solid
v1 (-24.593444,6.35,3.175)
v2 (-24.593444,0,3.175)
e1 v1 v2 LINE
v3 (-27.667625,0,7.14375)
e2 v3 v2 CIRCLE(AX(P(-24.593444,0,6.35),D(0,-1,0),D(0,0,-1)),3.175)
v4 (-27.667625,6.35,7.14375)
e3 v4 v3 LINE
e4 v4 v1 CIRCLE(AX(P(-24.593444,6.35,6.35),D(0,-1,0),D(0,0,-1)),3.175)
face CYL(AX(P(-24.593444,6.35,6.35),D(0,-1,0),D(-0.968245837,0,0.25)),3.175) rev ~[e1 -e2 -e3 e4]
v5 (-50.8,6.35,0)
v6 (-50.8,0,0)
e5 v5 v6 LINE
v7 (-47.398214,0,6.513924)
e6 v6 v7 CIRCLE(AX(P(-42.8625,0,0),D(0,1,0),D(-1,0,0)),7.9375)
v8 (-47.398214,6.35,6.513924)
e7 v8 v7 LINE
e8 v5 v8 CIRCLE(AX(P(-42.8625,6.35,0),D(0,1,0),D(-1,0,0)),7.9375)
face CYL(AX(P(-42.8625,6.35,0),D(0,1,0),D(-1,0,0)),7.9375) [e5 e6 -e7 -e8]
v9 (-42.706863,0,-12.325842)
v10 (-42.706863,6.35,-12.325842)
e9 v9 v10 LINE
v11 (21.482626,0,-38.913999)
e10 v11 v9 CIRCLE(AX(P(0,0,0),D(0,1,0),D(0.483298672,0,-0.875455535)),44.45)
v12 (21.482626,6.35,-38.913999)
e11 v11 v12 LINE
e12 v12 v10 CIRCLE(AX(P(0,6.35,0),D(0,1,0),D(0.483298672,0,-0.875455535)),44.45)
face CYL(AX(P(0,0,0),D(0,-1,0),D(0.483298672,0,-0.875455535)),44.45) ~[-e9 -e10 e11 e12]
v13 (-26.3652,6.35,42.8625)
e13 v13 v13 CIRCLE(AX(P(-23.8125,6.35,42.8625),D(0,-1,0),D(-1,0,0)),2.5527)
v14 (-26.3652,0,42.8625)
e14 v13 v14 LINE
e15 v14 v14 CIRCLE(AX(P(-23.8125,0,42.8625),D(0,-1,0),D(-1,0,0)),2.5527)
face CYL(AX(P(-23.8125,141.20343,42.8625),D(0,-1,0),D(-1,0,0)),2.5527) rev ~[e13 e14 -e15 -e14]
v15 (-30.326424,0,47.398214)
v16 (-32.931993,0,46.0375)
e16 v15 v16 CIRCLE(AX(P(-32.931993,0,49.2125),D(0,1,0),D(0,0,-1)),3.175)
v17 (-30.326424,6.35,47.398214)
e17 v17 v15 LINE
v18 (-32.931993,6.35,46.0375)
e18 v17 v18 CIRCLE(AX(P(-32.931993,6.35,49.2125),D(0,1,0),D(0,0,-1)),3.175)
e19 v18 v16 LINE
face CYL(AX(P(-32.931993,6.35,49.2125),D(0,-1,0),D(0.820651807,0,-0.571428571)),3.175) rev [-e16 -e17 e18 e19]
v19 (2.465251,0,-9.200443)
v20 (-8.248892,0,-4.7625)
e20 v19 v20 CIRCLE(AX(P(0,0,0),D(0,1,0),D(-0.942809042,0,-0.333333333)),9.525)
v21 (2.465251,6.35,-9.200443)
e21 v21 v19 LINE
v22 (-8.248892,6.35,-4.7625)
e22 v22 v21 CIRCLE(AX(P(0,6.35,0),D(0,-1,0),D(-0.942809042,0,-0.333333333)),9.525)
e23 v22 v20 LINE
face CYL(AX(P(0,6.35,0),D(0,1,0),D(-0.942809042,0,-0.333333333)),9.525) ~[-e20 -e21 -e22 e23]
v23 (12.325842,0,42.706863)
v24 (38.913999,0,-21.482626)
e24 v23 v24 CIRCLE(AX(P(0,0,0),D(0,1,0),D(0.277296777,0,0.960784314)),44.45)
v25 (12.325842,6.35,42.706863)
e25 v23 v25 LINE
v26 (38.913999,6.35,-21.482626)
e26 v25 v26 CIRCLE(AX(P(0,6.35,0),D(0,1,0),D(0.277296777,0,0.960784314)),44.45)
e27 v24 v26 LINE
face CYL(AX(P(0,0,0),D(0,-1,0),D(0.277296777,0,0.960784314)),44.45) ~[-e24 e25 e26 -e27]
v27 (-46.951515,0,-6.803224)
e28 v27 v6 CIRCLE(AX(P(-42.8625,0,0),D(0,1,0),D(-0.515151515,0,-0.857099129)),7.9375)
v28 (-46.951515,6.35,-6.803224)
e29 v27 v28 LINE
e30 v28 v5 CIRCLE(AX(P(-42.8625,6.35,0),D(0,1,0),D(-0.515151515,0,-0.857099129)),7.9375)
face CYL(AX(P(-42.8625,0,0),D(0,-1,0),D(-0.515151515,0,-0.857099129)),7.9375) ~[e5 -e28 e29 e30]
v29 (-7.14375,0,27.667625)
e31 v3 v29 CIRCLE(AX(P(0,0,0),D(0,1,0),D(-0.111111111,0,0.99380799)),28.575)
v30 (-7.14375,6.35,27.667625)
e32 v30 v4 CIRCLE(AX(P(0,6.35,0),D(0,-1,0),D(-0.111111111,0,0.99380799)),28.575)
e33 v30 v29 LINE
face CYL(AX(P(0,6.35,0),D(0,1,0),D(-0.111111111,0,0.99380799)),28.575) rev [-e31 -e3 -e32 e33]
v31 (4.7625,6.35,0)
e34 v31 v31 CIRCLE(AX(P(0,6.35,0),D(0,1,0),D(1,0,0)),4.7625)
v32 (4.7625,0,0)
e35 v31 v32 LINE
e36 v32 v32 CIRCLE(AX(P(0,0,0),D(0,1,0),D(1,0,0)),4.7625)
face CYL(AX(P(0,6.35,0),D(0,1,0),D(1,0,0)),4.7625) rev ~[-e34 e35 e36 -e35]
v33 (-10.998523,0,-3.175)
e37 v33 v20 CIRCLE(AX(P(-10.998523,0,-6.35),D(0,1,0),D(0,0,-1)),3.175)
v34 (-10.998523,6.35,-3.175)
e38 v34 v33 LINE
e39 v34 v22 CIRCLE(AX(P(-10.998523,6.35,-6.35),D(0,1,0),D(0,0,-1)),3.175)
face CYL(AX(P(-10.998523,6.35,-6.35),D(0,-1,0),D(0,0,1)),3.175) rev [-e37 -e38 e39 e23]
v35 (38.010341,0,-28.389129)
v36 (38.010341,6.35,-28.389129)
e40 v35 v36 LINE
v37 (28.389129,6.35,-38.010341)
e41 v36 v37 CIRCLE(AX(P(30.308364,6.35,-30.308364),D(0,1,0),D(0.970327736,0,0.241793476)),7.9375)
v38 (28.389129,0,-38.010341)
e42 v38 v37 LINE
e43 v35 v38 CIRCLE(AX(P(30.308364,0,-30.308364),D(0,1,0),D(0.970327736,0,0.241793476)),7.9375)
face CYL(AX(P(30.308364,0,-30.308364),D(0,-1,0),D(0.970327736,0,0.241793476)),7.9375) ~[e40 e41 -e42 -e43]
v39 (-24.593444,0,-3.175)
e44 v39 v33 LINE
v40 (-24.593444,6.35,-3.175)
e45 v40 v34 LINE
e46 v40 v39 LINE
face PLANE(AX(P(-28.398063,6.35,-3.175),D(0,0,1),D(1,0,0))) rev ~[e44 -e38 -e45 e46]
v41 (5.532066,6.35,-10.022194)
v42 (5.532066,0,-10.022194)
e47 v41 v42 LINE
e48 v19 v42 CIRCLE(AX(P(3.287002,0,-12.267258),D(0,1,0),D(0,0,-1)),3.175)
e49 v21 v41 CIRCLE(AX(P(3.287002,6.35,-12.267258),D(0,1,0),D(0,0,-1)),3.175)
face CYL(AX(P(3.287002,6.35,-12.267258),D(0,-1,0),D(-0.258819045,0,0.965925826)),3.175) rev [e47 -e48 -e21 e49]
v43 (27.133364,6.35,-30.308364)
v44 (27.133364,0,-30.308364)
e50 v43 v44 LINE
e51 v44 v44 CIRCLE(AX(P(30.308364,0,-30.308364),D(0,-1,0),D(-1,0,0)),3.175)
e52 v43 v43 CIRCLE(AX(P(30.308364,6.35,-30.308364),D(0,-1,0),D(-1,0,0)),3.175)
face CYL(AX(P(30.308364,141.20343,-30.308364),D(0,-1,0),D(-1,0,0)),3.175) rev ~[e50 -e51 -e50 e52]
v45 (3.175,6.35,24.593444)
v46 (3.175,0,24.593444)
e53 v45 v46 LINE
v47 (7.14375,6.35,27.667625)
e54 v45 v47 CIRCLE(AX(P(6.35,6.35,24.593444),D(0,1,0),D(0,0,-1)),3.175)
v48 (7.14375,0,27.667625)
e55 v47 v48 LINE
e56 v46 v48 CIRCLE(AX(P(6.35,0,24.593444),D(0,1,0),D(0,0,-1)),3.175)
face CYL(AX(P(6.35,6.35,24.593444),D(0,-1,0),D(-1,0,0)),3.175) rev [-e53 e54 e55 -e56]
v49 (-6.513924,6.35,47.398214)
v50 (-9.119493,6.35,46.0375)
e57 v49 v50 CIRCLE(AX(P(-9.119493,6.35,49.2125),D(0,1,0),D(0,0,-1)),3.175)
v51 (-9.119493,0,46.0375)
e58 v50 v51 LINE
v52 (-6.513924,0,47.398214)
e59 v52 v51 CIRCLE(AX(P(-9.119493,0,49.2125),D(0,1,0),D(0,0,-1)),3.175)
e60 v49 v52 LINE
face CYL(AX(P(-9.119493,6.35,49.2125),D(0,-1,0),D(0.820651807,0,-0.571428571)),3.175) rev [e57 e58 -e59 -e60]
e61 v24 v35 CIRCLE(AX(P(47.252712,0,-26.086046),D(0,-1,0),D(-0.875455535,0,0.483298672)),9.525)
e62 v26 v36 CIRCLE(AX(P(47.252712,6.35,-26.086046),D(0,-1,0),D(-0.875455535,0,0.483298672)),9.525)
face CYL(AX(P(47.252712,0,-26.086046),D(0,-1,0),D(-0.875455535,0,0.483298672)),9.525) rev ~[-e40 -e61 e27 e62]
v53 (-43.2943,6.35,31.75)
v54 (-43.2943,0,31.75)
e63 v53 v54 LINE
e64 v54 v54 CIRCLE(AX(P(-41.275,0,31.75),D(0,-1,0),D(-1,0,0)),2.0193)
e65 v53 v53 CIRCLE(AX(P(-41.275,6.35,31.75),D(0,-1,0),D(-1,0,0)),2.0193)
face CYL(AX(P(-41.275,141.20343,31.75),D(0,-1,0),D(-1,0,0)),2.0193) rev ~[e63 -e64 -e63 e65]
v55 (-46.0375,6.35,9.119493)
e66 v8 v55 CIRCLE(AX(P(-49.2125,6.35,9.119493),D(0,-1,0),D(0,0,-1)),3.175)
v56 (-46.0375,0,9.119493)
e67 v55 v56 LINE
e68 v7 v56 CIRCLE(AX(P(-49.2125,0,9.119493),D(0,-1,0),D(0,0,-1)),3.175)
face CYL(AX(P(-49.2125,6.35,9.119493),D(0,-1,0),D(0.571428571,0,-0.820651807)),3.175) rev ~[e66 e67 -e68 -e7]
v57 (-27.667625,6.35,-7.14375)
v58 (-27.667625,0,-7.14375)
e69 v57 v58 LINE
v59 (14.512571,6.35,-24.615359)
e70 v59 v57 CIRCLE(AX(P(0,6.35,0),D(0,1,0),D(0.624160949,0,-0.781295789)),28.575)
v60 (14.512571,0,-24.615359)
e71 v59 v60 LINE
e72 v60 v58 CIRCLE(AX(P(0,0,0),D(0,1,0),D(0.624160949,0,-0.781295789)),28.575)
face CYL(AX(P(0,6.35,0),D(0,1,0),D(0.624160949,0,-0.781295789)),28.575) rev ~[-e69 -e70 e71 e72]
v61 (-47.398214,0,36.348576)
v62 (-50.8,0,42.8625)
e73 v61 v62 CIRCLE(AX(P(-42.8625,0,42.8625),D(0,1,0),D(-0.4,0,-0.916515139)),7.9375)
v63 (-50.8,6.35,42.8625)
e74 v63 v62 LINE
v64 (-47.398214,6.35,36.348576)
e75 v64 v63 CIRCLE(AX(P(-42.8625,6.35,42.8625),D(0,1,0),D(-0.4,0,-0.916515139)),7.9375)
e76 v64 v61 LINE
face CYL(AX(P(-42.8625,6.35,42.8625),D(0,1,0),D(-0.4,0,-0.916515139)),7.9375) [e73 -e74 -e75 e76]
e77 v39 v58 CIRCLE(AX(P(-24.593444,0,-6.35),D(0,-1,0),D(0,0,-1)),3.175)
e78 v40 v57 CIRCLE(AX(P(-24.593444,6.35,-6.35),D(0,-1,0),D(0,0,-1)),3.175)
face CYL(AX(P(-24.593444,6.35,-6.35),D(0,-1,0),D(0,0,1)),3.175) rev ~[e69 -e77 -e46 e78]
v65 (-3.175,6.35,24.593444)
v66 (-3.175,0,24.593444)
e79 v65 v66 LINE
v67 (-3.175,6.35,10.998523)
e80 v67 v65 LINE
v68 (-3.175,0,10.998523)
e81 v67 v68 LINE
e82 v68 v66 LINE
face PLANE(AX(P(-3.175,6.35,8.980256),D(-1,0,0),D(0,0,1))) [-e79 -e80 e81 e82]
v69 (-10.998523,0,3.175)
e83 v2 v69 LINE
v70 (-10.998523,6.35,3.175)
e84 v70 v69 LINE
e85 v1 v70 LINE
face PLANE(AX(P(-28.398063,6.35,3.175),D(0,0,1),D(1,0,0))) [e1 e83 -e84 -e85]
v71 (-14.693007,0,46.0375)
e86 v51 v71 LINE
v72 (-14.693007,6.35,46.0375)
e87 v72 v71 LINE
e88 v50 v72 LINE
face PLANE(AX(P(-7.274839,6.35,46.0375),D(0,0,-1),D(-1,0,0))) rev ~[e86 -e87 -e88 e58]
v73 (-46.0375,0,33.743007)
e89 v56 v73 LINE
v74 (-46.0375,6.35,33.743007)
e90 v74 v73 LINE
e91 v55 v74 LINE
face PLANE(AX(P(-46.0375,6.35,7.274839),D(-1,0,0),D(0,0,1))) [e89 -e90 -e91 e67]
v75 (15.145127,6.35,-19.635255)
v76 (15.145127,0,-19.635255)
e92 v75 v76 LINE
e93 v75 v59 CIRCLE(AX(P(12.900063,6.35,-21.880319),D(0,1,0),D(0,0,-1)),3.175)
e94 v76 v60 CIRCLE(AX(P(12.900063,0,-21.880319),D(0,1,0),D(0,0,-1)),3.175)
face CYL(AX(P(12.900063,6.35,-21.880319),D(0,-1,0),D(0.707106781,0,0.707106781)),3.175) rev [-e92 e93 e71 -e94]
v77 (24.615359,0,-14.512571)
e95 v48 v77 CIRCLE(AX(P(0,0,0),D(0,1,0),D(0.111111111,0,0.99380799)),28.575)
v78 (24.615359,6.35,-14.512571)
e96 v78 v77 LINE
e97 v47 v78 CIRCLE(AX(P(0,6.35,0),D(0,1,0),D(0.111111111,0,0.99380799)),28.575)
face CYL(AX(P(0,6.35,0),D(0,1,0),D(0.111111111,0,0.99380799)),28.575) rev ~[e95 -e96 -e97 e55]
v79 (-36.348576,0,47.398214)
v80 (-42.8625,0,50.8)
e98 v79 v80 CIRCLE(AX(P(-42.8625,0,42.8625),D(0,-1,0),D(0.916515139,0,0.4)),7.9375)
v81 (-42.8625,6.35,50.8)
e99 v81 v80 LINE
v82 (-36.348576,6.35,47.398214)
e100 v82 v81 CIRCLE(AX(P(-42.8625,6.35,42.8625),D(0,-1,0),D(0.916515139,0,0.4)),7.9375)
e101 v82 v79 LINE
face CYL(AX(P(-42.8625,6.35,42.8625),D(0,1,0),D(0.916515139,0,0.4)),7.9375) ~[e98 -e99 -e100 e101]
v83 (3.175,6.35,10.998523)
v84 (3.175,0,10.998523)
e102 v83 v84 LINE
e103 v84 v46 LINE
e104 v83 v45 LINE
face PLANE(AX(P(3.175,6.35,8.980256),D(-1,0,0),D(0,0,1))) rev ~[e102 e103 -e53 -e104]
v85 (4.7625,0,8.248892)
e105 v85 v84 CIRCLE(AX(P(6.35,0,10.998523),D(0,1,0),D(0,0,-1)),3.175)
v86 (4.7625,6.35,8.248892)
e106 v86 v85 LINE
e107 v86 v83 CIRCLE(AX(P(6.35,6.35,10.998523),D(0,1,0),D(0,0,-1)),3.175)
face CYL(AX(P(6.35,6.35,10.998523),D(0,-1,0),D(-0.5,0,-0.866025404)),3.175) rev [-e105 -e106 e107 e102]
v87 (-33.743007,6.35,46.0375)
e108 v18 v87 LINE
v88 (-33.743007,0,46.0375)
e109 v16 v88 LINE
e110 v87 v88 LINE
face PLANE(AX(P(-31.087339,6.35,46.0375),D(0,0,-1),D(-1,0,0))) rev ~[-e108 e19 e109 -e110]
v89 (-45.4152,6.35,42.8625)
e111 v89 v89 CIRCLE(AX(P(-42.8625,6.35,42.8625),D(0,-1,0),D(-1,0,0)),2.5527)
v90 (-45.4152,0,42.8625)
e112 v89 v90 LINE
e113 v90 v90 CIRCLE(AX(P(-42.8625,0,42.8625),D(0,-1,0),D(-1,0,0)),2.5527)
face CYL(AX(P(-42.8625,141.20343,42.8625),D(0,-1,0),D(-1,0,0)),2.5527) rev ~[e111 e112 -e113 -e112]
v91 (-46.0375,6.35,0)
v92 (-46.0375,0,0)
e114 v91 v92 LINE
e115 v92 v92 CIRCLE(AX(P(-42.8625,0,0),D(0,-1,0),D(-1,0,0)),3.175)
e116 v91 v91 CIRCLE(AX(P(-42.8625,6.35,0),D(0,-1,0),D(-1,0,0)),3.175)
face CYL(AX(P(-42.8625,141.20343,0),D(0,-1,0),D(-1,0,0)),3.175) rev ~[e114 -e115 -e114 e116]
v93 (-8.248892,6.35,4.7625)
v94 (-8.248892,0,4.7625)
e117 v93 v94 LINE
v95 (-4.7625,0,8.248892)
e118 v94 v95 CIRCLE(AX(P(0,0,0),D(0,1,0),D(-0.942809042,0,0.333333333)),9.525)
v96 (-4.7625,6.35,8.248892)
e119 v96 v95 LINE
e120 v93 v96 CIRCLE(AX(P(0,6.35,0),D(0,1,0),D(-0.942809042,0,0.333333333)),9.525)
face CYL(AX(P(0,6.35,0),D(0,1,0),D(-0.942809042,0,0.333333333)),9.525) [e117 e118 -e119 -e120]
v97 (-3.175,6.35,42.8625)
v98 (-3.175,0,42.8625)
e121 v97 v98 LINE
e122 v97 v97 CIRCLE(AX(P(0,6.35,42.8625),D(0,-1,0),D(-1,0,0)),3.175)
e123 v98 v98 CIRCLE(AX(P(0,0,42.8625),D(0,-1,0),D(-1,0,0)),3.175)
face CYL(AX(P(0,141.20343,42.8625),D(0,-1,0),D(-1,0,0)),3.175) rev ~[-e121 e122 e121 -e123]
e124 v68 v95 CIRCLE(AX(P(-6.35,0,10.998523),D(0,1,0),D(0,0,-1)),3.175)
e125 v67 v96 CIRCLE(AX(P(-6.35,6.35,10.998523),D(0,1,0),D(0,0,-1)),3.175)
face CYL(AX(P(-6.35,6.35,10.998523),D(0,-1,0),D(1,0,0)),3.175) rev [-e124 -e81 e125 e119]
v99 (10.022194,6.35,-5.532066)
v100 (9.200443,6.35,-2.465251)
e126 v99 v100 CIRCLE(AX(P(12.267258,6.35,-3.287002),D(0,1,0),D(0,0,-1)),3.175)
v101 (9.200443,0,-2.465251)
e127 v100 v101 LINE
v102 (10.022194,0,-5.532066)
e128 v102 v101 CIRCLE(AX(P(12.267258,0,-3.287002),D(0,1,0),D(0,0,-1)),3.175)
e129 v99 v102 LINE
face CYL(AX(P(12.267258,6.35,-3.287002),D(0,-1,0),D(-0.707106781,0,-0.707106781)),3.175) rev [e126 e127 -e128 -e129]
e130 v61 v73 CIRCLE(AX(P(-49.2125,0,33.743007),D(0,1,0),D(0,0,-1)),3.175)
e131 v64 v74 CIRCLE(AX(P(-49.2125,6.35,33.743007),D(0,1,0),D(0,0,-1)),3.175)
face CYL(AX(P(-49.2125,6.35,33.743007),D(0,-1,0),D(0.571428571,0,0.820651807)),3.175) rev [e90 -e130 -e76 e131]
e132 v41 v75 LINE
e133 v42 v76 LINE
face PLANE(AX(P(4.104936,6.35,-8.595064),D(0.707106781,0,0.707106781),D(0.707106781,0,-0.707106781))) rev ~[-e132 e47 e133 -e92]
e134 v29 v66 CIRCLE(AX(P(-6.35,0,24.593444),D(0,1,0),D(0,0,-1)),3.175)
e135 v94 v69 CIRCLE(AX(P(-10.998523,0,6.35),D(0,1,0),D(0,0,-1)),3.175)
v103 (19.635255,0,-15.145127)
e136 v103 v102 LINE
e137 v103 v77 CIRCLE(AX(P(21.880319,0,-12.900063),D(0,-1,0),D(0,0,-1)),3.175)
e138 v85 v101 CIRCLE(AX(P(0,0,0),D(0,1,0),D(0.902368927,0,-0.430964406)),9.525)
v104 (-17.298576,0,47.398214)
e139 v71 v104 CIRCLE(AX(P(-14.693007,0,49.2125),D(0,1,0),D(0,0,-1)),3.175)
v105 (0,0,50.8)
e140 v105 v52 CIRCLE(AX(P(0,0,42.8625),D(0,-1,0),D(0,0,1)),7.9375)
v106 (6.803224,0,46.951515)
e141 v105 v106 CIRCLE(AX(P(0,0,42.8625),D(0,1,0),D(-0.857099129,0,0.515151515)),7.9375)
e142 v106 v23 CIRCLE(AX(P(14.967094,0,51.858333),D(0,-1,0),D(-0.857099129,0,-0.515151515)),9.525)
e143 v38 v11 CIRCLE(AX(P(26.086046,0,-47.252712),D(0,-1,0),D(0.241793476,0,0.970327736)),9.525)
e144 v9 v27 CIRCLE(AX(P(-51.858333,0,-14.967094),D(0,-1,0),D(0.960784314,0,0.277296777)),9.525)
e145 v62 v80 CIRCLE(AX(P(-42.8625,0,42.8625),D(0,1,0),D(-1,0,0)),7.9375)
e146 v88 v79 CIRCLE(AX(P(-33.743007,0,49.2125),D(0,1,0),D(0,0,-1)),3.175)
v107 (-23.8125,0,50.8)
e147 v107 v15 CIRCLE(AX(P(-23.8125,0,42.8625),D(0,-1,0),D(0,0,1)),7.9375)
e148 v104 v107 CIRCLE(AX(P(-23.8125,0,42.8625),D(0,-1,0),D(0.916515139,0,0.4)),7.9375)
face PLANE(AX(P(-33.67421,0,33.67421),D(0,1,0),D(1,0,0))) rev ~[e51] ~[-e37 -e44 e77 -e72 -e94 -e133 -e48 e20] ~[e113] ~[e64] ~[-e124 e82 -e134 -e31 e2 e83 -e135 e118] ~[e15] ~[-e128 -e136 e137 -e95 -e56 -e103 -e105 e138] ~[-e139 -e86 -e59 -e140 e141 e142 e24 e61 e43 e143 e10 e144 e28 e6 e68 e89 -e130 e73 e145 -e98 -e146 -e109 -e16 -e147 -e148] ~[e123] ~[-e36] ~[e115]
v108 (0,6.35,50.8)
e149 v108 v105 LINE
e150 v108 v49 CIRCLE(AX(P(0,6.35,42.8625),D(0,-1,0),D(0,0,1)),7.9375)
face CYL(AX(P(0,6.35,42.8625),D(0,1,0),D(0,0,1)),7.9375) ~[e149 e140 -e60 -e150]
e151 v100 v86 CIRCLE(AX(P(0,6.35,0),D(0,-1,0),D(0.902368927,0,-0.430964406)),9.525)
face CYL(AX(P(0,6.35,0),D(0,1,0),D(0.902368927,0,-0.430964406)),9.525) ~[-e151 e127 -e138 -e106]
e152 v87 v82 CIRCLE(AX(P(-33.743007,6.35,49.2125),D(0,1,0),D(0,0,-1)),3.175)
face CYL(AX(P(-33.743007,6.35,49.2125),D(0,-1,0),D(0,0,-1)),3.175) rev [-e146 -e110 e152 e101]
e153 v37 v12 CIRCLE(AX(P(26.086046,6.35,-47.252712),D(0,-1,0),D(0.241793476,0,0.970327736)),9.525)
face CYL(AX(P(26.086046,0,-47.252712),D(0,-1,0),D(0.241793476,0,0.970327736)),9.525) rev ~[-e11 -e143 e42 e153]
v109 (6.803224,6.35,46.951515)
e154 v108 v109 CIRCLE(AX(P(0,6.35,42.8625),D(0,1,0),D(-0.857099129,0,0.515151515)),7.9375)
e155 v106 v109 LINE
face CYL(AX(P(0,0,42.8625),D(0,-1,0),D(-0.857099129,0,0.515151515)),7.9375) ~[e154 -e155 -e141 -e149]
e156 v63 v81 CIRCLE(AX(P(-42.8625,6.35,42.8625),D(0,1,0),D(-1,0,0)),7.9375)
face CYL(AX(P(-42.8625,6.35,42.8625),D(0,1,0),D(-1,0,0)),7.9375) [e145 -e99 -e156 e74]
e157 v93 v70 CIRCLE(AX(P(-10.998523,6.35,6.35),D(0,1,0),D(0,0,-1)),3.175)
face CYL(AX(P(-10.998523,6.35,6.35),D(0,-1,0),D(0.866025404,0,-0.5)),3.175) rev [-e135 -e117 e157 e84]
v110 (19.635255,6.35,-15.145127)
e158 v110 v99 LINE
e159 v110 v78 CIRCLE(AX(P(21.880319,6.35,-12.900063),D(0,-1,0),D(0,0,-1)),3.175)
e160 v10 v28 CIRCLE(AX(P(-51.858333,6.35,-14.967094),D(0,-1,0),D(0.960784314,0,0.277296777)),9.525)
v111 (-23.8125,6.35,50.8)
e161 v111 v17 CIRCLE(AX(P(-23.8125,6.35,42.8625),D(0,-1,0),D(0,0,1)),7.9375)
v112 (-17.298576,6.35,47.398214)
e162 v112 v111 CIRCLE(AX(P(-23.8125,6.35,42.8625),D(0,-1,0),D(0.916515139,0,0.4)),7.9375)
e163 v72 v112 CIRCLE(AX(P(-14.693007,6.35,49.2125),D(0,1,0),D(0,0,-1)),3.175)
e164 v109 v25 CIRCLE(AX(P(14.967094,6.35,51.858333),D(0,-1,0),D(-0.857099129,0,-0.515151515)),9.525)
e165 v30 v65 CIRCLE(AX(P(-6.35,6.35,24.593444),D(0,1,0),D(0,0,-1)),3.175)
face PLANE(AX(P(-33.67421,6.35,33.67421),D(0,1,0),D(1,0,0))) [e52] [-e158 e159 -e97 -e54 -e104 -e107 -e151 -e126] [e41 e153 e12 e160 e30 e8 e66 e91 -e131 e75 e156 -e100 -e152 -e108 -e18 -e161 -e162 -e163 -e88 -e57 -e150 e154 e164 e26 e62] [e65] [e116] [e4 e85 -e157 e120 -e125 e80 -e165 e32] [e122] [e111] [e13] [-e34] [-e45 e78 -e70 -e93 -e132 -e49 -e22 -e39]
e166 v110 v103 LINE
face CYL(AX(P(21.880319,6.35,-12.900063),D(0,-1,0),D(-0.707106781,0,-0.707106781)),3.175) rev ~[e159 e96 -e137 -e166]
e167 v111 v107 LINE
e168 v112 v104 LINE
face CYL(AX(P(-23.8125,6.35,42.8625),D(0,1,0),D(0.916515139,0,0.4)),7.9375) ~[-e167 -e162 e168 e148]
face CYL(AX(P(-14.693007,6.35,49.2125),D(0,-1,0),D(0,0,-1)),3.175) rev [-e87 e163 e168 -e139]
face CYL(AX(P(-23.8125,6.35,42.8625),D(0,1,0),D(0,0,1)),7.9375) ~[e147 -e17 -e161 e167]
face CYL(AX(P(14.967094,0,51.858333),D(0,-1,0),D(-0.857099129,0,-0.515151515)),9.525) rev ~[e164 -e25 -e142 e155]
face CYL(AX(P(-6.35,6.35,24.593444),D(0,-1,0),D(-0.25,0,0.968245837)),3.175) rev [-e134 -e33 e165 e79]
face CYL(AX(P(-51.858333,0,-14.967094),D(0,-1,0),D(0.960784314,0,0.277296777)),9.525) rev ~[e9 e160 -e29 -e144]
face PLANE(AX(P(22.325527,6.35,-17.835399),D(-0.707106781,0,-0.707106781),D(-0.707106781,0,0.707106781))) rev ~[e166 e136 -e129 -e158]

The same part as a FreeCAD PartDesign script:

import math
import FreeCAD as App
import Part
import Sketcher
Q = App.Units.Quantity


def edges_at(feature, points):
    """Names of the edges that pass closest to the given points."""
    edges = feature.Shape.Edges
    near = lambda p: min(range(len(edges)), key=lambda i: edges[i].distToShape(Part.Vertex(*p))[0])
    return sorted({f"Edge{near(p) + 1}" for p in points})

doc = App.newDocument("Part")
params = doc.addObject("Spreadsheet::Sheet", "Params")
for row, (alias, value) in enumerate([
    ("sketch1_radius", "1.75 in"),
    ("sketch1_radius2", "0.375 in"),
    ("sketch1_radius3", "0.3125 in"),
    ("pad1_length", "0.25 in"),
    ("sketch2_diameter", "0.375 in"),
    ("sketch3_diameter", "0.25 in"),
    ("hole_diameter", "0.25 in"),
    ("sketch4_radius", "0.375 in"),
    ("sketch4_radius2", "1.125 in"),
    ("fillet_radius", "0.125 in"),
    ("sketch5_radius", "1.75 in"),
    ("sketch5_radius2", "0.3125 in"),
    ("sketch5_radius3", "0.375 in"),
    ("pad2_length", "0.25 in"),
    ("sketch6_diameter", "0.201 in"),
    ("hole2_diameter", "0.201 in"),
    ("sketch7_radius", "0.3125 in"),
    ("sketch7_width", "0.75 in"),
    ("pocket3_length", "0.25 in"),
    ("fillet2_radius", "0.125 in"),
    ("sketch8_diameter", "0.159 in"),
    ("hole3_diameter", "0.159 in"),
], start=1):
    params.set(f"A{row}", alias)
    params.set(f"B{row}", "=" + value)
    params.setAlias(f"B{row}", alias)

body = doc.addObject("PartDesign::Body", "Body")

sketch1 = body.newObject("Sketcher::SketchObject", "Sketch")
sketch1.AttachmentSupport = (doc.getObject("XZ_Plane"), [""])
sketch1.MapMode = "FlatFace"
sketch1.addGeometry([
    Part.ArcOfCircle(Part.Circle(App.Vector(0, 0, 0), App.Vector(0, 0, 1), 44.45), math.radians(106.098934), math.radians(163.901066)),
    Part.ArcOfCircle(Part.Circle(App.Vector(-14.967094, 51.858333, 0), App.Vector(0, 0, 1), 9.525), math.radians(-73.901066), math.radians(-31.007583)),
    Part.ArcOfCircle(Part.Circle(App.Vector(0, 42.8625, 0), App.Vector(0, 0, 1), 7.9375), math.radians(31.007583), math.radians(148.992417)),
    Part.ArcOfCircle(Part.Circle(App.Vector(14.967094, 51.858333, 0), App.Vector(0, 0, 1), 9.525), math.radians(-148.992417), math.radians(-106.098934)),
    Part.ArcOfCircle(Part.Circle(App.Vector(0, 0, 0), App.Vector(0, 0, 1), 44.45), math.radians(-28.901066), math.radians(73.901066)),
    Part.ArcOfCircle(Part.Circle(App.Vector(47.252712, -26.086046, 0), App.Vector(0, 0, 1), 9.525), math.radians(151.098934), math.radians(193.992417)),
    Part.ArcOfCircle(Part.Circle(App.Vector(30.308364, -30.308364, 0), App.Vector(0, 0, 1), 7.9375), math.radians(-103.992417), math.radians(13.992417)),
    Part.ArcOfCircle(Part.Circle(App.Vector(26.086046, -47.252712, 0), App.Vector(0, 0, 1), 9.525), math.radians(76.007583), math.radians(118.901066)),
    Part.ArcOfCircle(Part.Circle(App.Vector(0, 0, 0), App.Vector(0, 0, 1), 44.45), math.radians(-163.901066), math.radians(-61.098934)),
    Part.ArcOfCircle(Part.Circle(App.Vector(-51.858333, -14.967094, 0), App.Vector(0, 0, 1), 9.525), math.radians(16.098934), math.radians(58.992417)),
    Part.ArcOfCircle(Part.Circle(App.Vector(-42.8625, 0, 0), App.Vector(0, 0, 1), 7.9375), math.radians(121.007583), math.radians(238.992417)),
    Part.ArcOfCircle(Part.Circle(App.Vector(-51.858333, 14.967094, 0), App.Vector(0, 0, 1), 9.525), math.radians(-58.992417), math.radians(-16.098934)),
], False)
sketch1.addConstraint([
    Sketcher.Constraint("Tangent", 0, 1, 1, 1),
    Sketcher.Constraint("Tangent", 1, 2, 2, 2),
    Sketcher.Constraint("Tangent", 2, 1, 3, 1),
    Sketcher.Constraint("Tangent", 3, 2, 4, 2),
    Sketcher.Constraint("Tangent", 4, 1, 5, 1),
    Sketcher.Constraint("Tangent", 5, 2, 6, 2),
    Sketcher.Constraint("Tangent", 6, 1, 7, 1),
    Sketcher.Constraint("Tangent", 7, 2, 8, 2),
    Sketcher.Constraint("Tangent", 8, 1, 9, 1),
    Sketcher.Constraint("Tangent", 9, 2, 10, 2),
    Sketcher.Constraint("Tangent", 10, 1, 11, 1),
    Sketcher.Constraint("Tangent", 11, 2, 0, 2),
    Sketcher.Constraint("Coincident", 0, 3, -1, 1),
    Sketcher.Constraint("Coincident", 4, 3, -1, 1),
    Sketcher.Constraint("Coincident", 8, 3, -1, 1),
    Sketcher.Constraint("Equal", 1, 3),
    Sketcher.Constraint("Equal", 0, 4),
    Sketcher.Constraint("Equal", 3, 5),
    Sketcher.Constraint("Equal", 2, 6),
    Sketcher.Constraint("Equal", 5, 7),
    Sketcher.Constraint("Equal", 4, 8),
    Sketcher.Constraint("Equal", 7, 9),
    Sketcher.Constraint("Equal", 6, 10),
    Sketcher.Constraint("Equal", 9, 11),
    Sketcher.Constraint("PointOnObject", 2, 3, -2),
    Sketcher.Constraint("PointOnObject", 10, 3, -1),
    Sketcher.Constraint("Radius", 0, Q("1.75 in")),
    Sketcher.Constraint("Radius", 1, Q("0.375 in")),
    Sketcher.Constraint("Radius", 2, Q("0.3125 in")),
    Sketcher.Constraint("DistanceY", -1, 1, 2, 3, Q("1.6875 in")),
    Sketcher.Constraint("DistanceX", 10, 3, -1, 1, Q("1.6875 in")),
    Sketcher.Constraint("DistanceX", -1, 1, 4, 1, Q("38.913999 mm")),
    Sketcher.Constraint("DistanceY", 7, 2, -1, 1, Q("38.913999 mm")),
])
sketch1.setExpression("Constraints[26]", "Params.sketch1_radius")
sketch1.setExpression("Constraints[27]", "Params.sketch1_radius2")
sketch1.setExpression("Constraints[28]", "Params.sketch1_radius3")
pad1 = body.newObject("PartDesign::Pad", "Pad")
pad1.Profile = sketch1
pad1.setExpression("Length", "Params.pad1_length")
pad1.Reversed = True

sketch2 = body.newObject("Sketcher::SketchObject", "Sketch001")
sketch2.AttachmentSupport = (doc.getObject("XZ_Plane"), [""])
sketch2.MapMode = "FlatFace"
sketch2.AttachmentOffset = App.Placement(App.Vector(0, 0, -0.25 * 25.4), App.Rotation())
sketch2.addGeometry(Part.Circle(App.Vector(0, 0, 0), App.Vector(0, 0, 1), 4.7625), False)
sketch2.addConstraint([
    Sketcher.Constraint("Coincident", 0, 3, -1, 1),
    Sketcher.Constraint("Diameter", 0, Q("0.375 in")),
])
sketch2.setExpression("Constraints[1]", "Params.sketch2_diameter")
pocket1 = body.newObject("PartDesign::Pocket", "Pocket")
pocket1.Profile = sketch2
pocket1.Type = "ThroughAll"
pocket1.Reversed = True

sketch3 = body.newObject("Sketcher::SketchObject", "Sketch002")
sketch3.AttachmentSupport = (doc.getObject("XZ_Plane"), [""])
sketch3.MapMode = "FlatFace"
sketch3.AttachmentOffset = App.Placement(App.Vector(0, 0, -0.25 * 25.4), App.Rotation())
sketch3.addGeometry([
    Part.Circle(App.Vector(-42.8625, 0, 0), App.Vector(0, 0, 1), 3.175),
    Part.Circle(App.Vector(30.308364, -30.308364, 0), App.Vector(0, 0, 1), 3.175),
    Part.Circle(App.Vector(0, 42.8625, 0), App.Vector(0, 0, 1), 3.175),
], False)
sketch3.addConstraint([
    Sketcher.Constraint("Equal", 0, 1),
    Sketcher.Constraint("Equal", 1, 2),
    Sketcher.Constraint("PointOnObject", 0, 3, -1),
    Sketcher.Constraint("PointOnObject", 2, 3, -2),
    Sketcher.Constraint("Diameter", 0, Q("0.25 in")),
    Sketcher.Constraint("DistanceX", 0, 3, -1, 1, Q("1.6875 in")),
    Sketcher.Constraint("DistanceY", -1, 1, 2, 3, Q("1.6875 in")),
    Sketcher.Constraint("DistanceX", -1, 1, 1, 3, Q("30.308364 mm")),
    Sketcher.Constraint("DistanceY", 1, 3, -1, 1, Q("30.308364 mm")),
])
sketch3.setExpression("Constraints[4]", "Params.sketch3_diameter")
doc.recompute()
hole = body.newObject("PartDesign::Hole", "Hole")
hole.Profile = sketch3
hole.ThreadType = "None"
hole.setExpression("Diameter", "Params.hole_diameter")
hole.DepthType = "ThroughAll"
hole.Reversed = True

sketch4 = body.newObject("Sketcher::SketchObject", "Sketch003")
sketch4.AttachmentSupport = (doc.getObject("XZ_Plane"), [""])
sketch4.MapMode = "FlatFace"
sketch4.AttachmentOffset = App.Placement(App.Vector(0, 0, -0.25 * 25.4), App.Rotation())
sketch4.addGeometry([
    Part.LineSegment(App.Vector(-28.398063, -3.175, 0), App.Vector(-8.980256, -3.175, 0)),
    Part.ArcOfCircle(Part.Circle(App.Vector(0, 0, 0), App.Vector(0, 0, 1), 9.525), math.radians(-160.528779), math.radians(-64.471221)),
    Part.LineSegment(App.Vector(4.104936, -8.595064, 0), App.Vector(17.835399, -22.325527, 0)),
    Part.ArcOfCircle(Part.Circle(App.Vector(0, 0, 0), App.Vector(0, 0, 1), 28.575), math.radians(-173.62063), math.radians(-51.37937)),
    Part.LineSegment(App.Vector(-8.980256, 3.175, 0), App.Vector(-28.398063, 3.175, 0)),
    Part.ArcOfCircle(Part.Circle(App.Vector(0, 0, 0), App.Vector(0, 0, 1), 28.575), math.radians(96.37937), math.radians(173.62063)),
    Part.LineSegment(App.Vector(-3.175, 28.398063, 0), App.Vector(-3.175, 8.980256, 0)),
    Part.ArcOfCircle(Part.Circle(App.Vector(0, 0, 0), App.Vector(0, 0, 1), 9.525), math.radians(109.471221), math.radians(160.528779)),
    Part.LineSegment(App.Vector(22.325527, -17.835399, 0), App.Vector(8.595064, -4.104936, 0)),
    Part.ArcOfCircle(Part.Circle(App.Vector(0, 0, 0), App.Vector(0, 0, 1), 9.525), math.radians(-25.528779), math.radians(70.528779)),
    Part.LineSegment(App.Vector(3.175, 8.980256, 0), App.Vector(3.175, 28.398063, 0)),
    Part.ArcOfCircle(Part.Circle(App.Vector(0, 0, 0), App.Vector(0, 0, 1), 28.575), math.radians(-38.62063), math.radians(83.62063)),
], False)
sketch4.addConstraint([
    Sketcher.Constraint("Coincident", 0, 2, 1, 1),
    Sketcher.Constraint("Coincident", 1, 2, 2, 1),
    Sketcher.Constraint("Coincident", 2, 2, 3, 2),
    Sketcher.Constraint("Coincident", 3, 1, 0, 1),
    Sketcher.Constraint("Coincident", 4, 2, 5, 2),
    Sketcher.Constraint("Coincident", 5, 1, 6, 1),
    Sketcher.Constraint("Coincident", 6, 2, 7, 1),
    Sketcher.Constraint("Coincident", 7, 2, 4, 1),
    Sketcher.Constraint("Coincident", 8, 2, 9, 1),
    Sketcher.Constraint("Coincident", 9, 2, 10, 1),
    Sketcher.Constraint("Coincident", 10, 2, 11, 2),
    Sketcher.Constraint("Coincident", 11, 1, 8, 1),
    Sketcher.Constraint("Horizontal", 0),
    Sketcher.Constraint("Horizontal", 4),
    Sketcher.Constraint("Vertical", 6),
    Sketcher.Constraint("Vertical", 10),
    Sketcher.Constraint("Coincident", 1, 3, -1, 1),
    Sketcher.Constraint("Coincident", 3, 3, -1, 1),
    Sketcher.Constraint("Coincident", 5, 3, -1, 1),
    Sketcher.Constraint("Coincident", 7, 3, -1, 1),
    Sketcher.Constraint("Coincident", 9, 3, -1, 1),
    Sketcher.Constraint("Coincident", 11, 3, -1, 1),
    Sketcher.Constraint("Equal", 3, 5),
    Sketcher.Constraint("Equal", 1, 7),
    Sketcher.Constraint("Equal", 7, 9),
    Sketcher.Constraint("Equal", 5, 11),
    Sketcher.Constraint("Parallel", 2, 8),
    Sketcher.Constraint("Horizontal", 6, 2, 9, 2),
    Sketcher.Constraint("Vertical", 3, 1, 4, 2),
    Sketcher.Constraint("Equal", 4, 6),
    Sketcher.Constraint("Equal", 2, 8),
    Sketcher.Constraint("Angle", 2, Q("-45 deg")),
    Sketcher.Constraint("Radius", 1, Q("0.375 in")),
    Sketcher.Constraint("Radius", 3, Q("1.125 in")),
    Sketcher.Constraint("DistanceY", 3, 1, 4, 2, Q("0.25 in")),
    Sketcher.Constraint("DistanceX", -1, 1, 2, 2, Q("17.835399 mm")),
])
sketch4.setExpression("Constraints[32]", "Params.sketch4_radius")
sketch4.setExpression("Constraints[33]", "Params.sketch4_radius2")
pocket2 = body.newObject("PartDesign::Pocket", "Pocket001")
pocket2.Profile = sketch4
pocket2.Type = "ThroughAll"
pocket2.Reversed = True
doc.recompute()

fillet = body.newObject("PartDesign::Fillet", "Fillet")
fillet.Base = (pocket2, edges_at(pocket2, [
    (22.326, 3.175, -17.835),
    (3.175, 3.175, 28.398),
    (3.175, 3.175, 8.98),
    (8.595, 3.175, -4.105),
    (-3.175, 3.175, 28.398),
    (-28.398, 3.175, 3.175),
    (-8.98, 3.175, 3.175),
    (-3.175, 3.175, 8.98),
    (-28.398, 3.175, -3.175),
    (17.835, 3.175, -22.326),
    (4.105, 3.175, -8.595),
    (-8.98, 3.175, -3.175),
]))
fillet.setExpression("Radius", "Params.fillet_radius")

sketch5 = body.newObject("Sketcher::SketchObject", "Sketch004")
sketch5.AttachmentSupport = (doc.getObject("XZ_Plane"), [""])
sketch5.MapMode = "FlatFace"
sketch5.AttachmentOffset = App.Placement(App.Vector(0, 0, -0.25 * 25.4), App.Rotation())
sketch5.addGeometry([
    Part.LineSegment(App.Vector(-50.8, 0, 0), App.Vector(-50.8, 42.8625, 0)),
    Part.ArcOfCircle(Part.Circle(App.Vector(-42.8625, 42.8625, 0), App.Vector(0, 0, 1), 7.9375), math.radians(90), math.radians(180)),
    Part.LineSegment(App.Vector(-42.8625, 50.8, 0), App.Vector(0, 50.8, 0)),
    Part.ArcOfCircle(Part.Circle(App.Vector(0, 42.8625, 0), App.Vector(0, 0, 1), 7.9375), math.radians(90), math.radians(148.992417)),
    Part.ArcOfCircle(Part.Circle(App.Vector(-14.967094, 51.858333, 0), App.Vector(0, 0, 1), 9.525), math.radians(-73.901066), math.radians(-31.007583)),
    Part.ArcOfCircle(Part.Circle(App.Vector(0, 0, 0), App.Vector(0, 0, 1), 44.45), math.radians(106.098934), math.radians(163.901066)),
    Part.ArcOfCircle(Part.Circle(App.Vector(-51.858333, 14.967094, 0), App.Vector(0, 0, 1), 9.525), math.radians(-58.992417), math.radians(-16.098934)),
    Part.ArcOfCircle(Part.Circle(App.Vector(-42.8625, 0, 0), App.Vector(0, 0, 1), 7.9375), math.radians(121.007583), math.radians(180)),
], False)
sketch5.addConstraint([
    Sketcher.Constraint("Tangent", 0, 2, 1, 2),
    Sketcher.Constraint("Tangent", 1, 1, 2, 1),
    Sketcher.Constraint("Tangent", 2, 2, 3, 1),
    Sketcher.Constraint("Tangent", 3, 2, 4, 2),
    Sketcher.Constraint("Tangent", 4, 1, 5, 1),
    Sketcher.Constraint("Tangent", 5, 2, 6, 2),
    Sketcher.Constraint("Tangent", 6, 1, 7, 1),
    Sketcher.Constraint("Tangent", 7, 2, 0, 1),
    Sketcher.Constraint("Vertical", 0),
    Sketcher.Constraint("Horizontal", 2),
    Sketcher.Constraint("Coincident", 5, 3, -1, 1),
    Sketcher.Constraint("Equal", 1, 3),
    Sketcher.Constraint("Equal", 4, 6),
    Sketcher.Constraint("Equal", 3, 7),
    Sketcher.Constraint("PointOnObject", 3, 3, -2),
    Sketcher.Constraint("PointOnObject", 7, 3, -1),
    Sketcher.Constraint("Equal", 2, 0),
    Sketcher.Constraint("Radius", 5, Q("1.75 in")),
    Sketcher.Constraint("DistanceX", 0, 2, -1, 1, Q("2 in")),
    Sketcher.Constraint("Radius", 1, Q("0.3125 in")),
    Sketcher.Constraint("Radius", 4, Q("0.375 in")),
])
sketch5.setExpression("Constraints[17]", "Params.sketch5_radius")
sketch5.setExpression("Constraints[19]", "Params.sketch5_radius2")
sketch5.setExpression("Constraints[20]", "Params.sketch5_radius3")
pad2 = body.newObject("PartDesign::Pad", "Pad001")
pad2.Profile = sketch5
pad2.setExpression("Length", "Params.pad2_length")

sketch6 = body.newObject("Sketcher::SketchObject", "Sketch005")
sketch6.AttachmentSupport = (doc.getObject("XZ_Plane"), [""])
sketch6.MapMode = "FlatFace"
sketch6.AttachmentOffset = App.Placement(App.Vector(0, 0, -0.25 * 25.4), App.Rotation())
sketch6.addGeometry([
    Part.Circle(App.Vector(-42.8625, 42.8625, 0), App.Vector(0, 0, 1), 2.5527),
    Part.Circle(App.Vector(-23.8125, 42.8625, 0), App.Vector(0, 0, 1), 2.5527),
], False)
sketch6.addConstraint([
    Sketcher.Constraint("Equal", 0, 1),
    Sketcher.Constraint("Horizontal", 0, 3, 1, 3),
    Sketcher.Constraint("Diameter", 0, Q("0.201 in")),
    Sketcher.Constraint("DistanceX", 0, 3, 1, 3, Q("0.75 in")),
    Sketcher.Constraint("DistanceX", 0, 3, -1, 1, Q("1.6875 in")),
    Sketcher.Constraint("DistanceY", -1, 1, 0, 3, Q("1.6875 in")),
])
sketch6.setExpression("Constraints[2]", "Params.sketch6_diameter")
doc.recompute()
hole2 = body.newObject("PartDesign::Hole", "Hole001")
hole2.Profile = sketch6
hole2.ThreadType = "None"
hole2.setExpression("Diameter", "Params.hole2_diameter")
hole2.DepthType = "ThroughAll"
hole2.Reversed = True

sketch7 = body.newObject("Sketcher::SketchObject", "Sketch006")
sketch7.AttachmentSupport = (doc.getObject("XZ_Plane"), [""])
sketch7.MapMode = "FlatFace"
sketch7.AttachmentOffset = App.Placement(App.Vector(0, 0, -0.25 * 25.4), App.Rotation())
sketch7.addGeometry([
    Part.ArcOfCircle(Part.Circle(App.Vector(-42.8625, 42.8625, 0), App.Vector(0, 0, 1), 7.9375), math.radians(180), math.radians(246.421822)),
    Part.LineSegment(App.Vector(-46.0375, 35.587661, 0), App.Vector(-46.0375, 7.274839, 0)),
    Part.ArcOfCircle(Part.Circle(App.Vector(-42.8625, 0, 0), App.Vector(0, 0, 1), 7.9375), math.radians(113.578178), math.radians(180)),
    Part.LineSegment(App.Vector(-50.8, 0, 0), App.Vector(-50.8, 42.8625, 0)),
    Part.LineSegment(App.Vector(-31.087339, 46.0375, 0), App.Vector(-35.587661, 46.0375, 0)),
    Part.ArcOfCircle(Part.Circle(App.Vector(-42.8625, 42.8625, 0), App.Vector(0, 0, 1), 7.9375), math.radians(23.578178), math.radians(90)),
    Part.LineSegment(App.Vector(-42.8625, 50.8, 0), App.Vector(-23.8125, 50.8, 0)),
    Part.ArcOfCircle(Part.Circle(App.Vector(-23.8125, 42.8625, 0), App.Vector(0, 0, 1), 7.9375), math.radians(90), math.radians(156.421822)),
    Part.ArcOfCircle(Part.Circle(App.Vector(-23.8125, 42.8625, 0), App.Vector(0, 0, 1), 7.9375), math.radians(23.578178), math.radians(90)),
    Part.LineSegment(App.Vector(-23.8125, 50.8, 0), App.Vector(0, 50.8, 0)),
    Part.ArcOfCircle(Part.Circle(App.Vector(0, 42.8625, 0), App.Vector(0, 0, 1), 7.9375), math.radians(90), math.radians(156.421822)),
    Part.LineSegment(App.Vector(-7.274839, 46.0375, 0), App.Vector(-16.537661, 46.0375, 0)),
], False)
sketch7.addConstraint([
    Sketcher.Constraint("Coincident", 0, 2, 1, 1),
    Sketcher.Constraint("Coincident", 1, 2, 2, 1),
    Sketcher.Constraint("Tangent", 2, 2, 3, 1),
    Sketcher.Constraint("Tangent", 3, 2, 0, 1),
    Sketcher.Constraint("Coincident", 4, 2, 5, 1),
    Sketcher.Constraint("Tangent", 5, 2, 6, 1),
    Sketcher.Constraint("Tangent", 6, 2, 7, 1),
    Sketcher.Constraint("Coincident", 7, 2, 4, 1),
    Sketcher.Constraint("Tangent", 8, 2, 9, 1),
    Sketcher.Constraint("Tangent", 9, 2, 10, 1),
    Sketcher.Constraint("Coincident", 10, 2, 11, 1),
    Sketcher.Constraint("Coincident", 11, 2, 8, 1),
    Sketcher.Constraint("Vertical", 1),
    Sketcher.Constraint("Vertical", 3),
    Sketcher.Constraint("Horizontal", 4),
    Sketcher.Constraint("Horizontal", 6),
    Sketcher.Constraint("Horizontal", 9),
    Sketcher.Constraint("Horizontal", 11),
    Sketcher.Constraint("Coincident", 5, 3, 0, 3),
    Sketcher.Constraint("Coincident", 8, 3, 7, 3),
    Sketcher.Constraint("Equal", 0, 2),
    Sketcher.Constraint("Equal", 2, 5),
    Sketcher.Constraint("Equal", 5, 7),
    Sketcher.Constraint("Equal", 7, 8),
    Sketcher.Constraint("Equal", 8, 10),
    Sketcher.Constraint("PointOnObject", 2, 3, -1),
    Sketcher.Constraint("PointOnObject", 10, 3, -2),
    Sketcher.Constraint("Horizontal", 7, 2, 10, 2),
    Sketcher.Constraint("DistanceX", 2, 2, -1, 1, Q("2 in")),
    Sketcher.Constraint("DistanceY", -1, 1, 5, 2, Q("2 in")),
    Sketcher.Constraint("Radius", 0, Q("0.3125 in")),
    Sketcher.Constraint("DistanceX", 6, 1, 6, 2, Q("0.75 in")),
    Sketcher.Constraint("DistanceX", 0, 2, -1, 1, Q("1.8125 in")),
    Sketcher.Constraint("DistanceY", -1, 1, 4, 2, Q("1.8125 in")),
])
sketch7.setExpression("Constraints[30]", "Params.sketch7_radius")
sketch7.setExpression("Constraints[31]", "Params.sketch7_width")
pocket3 = body.newObject("PartDesign::Pocket", "Pocket002")
pocket3.Profile = sketch7
pocket3.setExpression("Length", "Params.pocket3_length")
pocket3.Reversed = True
doc.recompute()

fillet2 = body.newObject("PartDesign::Fillet", "Fillet001")
fillet2.Base = (pocket3, edges_at(pocket3, [
    (-46.038, 3.175, 35.588),
    (-46.038, 3.175, 7.275),
    (-35.588, 3.175, 46.038),
    (-31.087, 3.175, 46.038),
    (-16.538, 3.175, 46.038),
    (-7.275, 3.175, 46.038),
]))
fillet2.setExpression("Radius", "Params.fillet2_radius")

sketch8 = body.newObject("Sketcher::SketchObject", "Sketch007")
sketch8.AttachmentSupport = (doc.getObject("XZ_Plane"), [""])
sketch8.MapMode = "FlatFace"
sketch8.AttachmentOffset = App.Placement(App.Vector(0, 0, -0.25 * 25.4), App.Rotation())
sketch8.addGeometry(Part.Circle(App.Vector(-41.275, 31.75, 0), App.Vector(0, 0, 1), 2.0193), False)
sketch8.addConstraint([
    Sketcher.Constraint("Diameter", 0, Q("0.159 in")),
    Sketcher.Constraint("DistanceY", -1, 1, 0, 3, Q("1.25 in")),
    Sketcher.Constraint("DistanceX", 0, 3, -1, 1, Q("1.625 in")),
])
sketch8.setExpression("Constraints[0]", "Params.sketch8_diameter")
doc.recompute()
hole3 = body.newObject("PartDesign::Hole", "Hole002")
hole3.Profile = sketch8
hole3.ThreadType = "None"
hole3.setExpression("Diameter", "Params.hole3_diameter")
hole3.DepthType = "ThroughAll"
hole3.Reversed = True

doc.recompute()
